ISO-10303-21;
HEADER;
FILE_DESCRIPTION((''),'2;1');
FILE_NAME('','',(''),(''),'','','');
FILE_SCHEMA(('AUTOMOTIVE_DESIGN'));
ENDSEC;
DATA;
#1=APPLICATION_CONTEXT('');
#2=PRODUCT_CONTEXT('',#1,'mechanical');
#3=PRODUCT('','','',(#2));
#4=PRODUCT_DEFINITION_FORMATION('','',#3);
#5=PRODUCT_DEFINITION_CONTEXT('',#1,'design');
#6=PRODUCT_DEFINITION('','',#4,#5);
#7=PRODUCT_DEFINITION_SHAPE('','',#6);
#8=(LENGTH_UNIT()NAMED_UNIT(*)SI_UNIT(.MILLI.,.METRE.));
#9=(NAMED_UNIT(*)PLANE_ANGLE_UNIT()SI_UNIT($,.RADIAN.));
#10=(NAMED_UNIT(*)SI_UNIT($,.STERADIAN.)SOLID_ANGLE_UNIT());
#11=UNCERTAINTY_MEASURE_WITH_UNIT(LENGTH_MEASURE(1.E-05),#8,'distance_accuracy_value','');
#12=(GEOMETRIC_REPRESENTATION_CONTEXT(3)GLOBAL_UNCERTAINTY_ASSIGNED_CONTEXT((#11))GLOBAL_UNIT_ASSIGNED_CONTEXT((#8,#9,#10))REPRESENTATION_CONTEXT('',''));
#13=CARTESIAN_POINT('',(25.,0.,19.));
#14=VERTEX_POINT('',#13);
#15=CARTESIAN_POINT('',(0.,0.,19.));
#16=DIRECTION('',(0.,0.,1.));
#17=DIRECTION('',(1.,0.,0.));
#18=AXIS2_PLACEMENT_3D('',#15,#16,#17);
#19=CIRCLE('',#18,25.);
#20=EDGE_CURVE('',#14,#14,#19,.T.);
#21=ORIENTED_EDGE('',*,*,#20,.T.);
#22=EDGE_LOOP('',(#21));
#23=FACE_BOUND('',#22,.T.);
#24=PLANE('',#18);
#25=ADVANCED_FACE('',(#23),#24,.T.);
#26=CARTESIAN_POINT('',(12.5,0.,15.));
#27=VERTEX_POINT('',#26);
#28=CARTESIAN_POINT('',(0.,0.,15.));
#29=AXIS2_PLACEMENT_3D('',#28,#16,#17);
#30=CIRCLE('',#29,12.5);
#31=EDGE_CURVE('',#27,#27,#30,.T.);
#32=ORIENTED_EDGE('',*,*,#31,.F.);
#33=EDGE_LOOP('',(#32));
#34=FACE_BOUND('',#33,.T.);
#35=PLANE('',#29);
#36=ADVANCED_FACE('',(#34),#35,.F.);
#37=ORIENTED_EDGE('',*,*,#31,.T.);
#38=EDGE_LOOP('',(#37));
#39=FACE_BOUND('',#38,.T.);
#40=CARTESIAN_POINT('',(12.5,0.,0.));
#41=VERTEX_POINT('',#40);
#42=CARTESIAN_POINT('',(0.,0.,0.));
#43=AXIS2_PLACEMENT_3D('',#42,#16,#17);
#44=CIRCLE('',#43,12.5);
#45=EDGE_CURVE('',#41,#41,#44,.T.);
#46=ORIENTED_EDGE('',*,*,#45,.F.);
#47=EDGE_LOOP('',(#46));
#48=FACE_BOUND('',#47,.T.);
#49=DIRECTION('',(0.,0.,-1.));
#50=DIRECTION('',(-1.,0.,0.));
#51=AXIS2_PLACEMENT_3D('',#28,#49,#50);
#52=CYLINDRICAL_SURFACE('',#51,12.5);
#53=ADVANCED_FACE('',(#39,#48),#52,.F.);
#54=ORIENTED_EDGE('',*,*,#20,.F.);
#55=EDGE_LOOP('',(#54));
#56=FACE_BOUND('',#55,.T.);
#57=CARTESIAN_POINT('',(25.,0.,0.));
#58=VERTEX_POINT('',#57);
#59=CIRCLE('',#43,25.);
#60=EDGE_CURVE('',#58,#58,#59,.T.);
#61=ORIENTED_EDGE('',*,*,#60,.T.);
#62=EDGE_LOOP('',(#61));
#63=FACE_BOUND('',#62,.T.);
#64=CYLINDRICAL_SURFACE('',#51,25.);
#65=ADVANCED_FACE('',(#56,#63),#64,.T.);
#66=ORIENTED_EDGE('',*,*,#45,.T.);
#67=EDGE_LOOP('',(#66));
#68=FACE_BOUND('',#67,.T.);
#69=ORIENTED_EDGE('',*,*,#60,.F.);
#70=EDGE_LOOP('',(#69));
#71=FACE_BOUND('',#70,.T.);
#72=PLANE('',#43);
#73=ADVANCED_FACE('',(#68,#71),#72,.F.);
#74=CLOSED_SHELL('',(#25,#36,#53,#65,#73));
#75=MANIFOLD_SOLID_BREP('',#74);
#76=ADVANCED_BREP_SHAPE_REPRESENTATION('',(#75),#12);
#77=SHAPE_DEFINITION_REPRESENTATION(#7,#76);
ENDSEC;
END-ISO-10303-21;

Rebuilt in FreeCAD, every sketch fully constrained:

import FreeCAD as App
import Part
import Sketcher

V = App.Vector

doc = App.newDocument("Part")
params = doc.addObject("Spreadsheet::Sheet", "Params")
for row, (alias, value) in enumerate([
    ("sketch1_diameter", "50 mm"),
    ("sketch1_diameter2", "25 mm"),
    ("pad1_length", "15 mm"),
    ("sketch2_diameter", "50 mm"),
    ("pad2_length", "4 mm"),
], start=1):
    params.set(f"A{row}", alias)
    params.set(f"B{row}", "=" + value)
    params.setAlias(f"B{row}", alias)

body = doc.addObject("PartDesign::Body", "Body")

sketch1 = body.newObject("Sketcher::SketchObject", "Sketch")
sketch1.AttachmentSupport = (doc.getObject("XY_Plane"), [""])
sketch1.MapMode = "FlatFace"
sketch1.addGeometry([
    Part.Circle(V(0, 0, 0), V(0, 0, 1), 25),
    Part.Circle(V(0, 0, 0), V(0, 0, 1), 12),
], False)
sketch1.addConstraint([
    Sketcher.Constraint("Coincident", 0, 3, -1, 1),
    Sketcher.Constraint("Coincident", 1, 3, -1, 1),
    Sketcher.Constraint("Diameter", 0, 50.0),
    Sketcher.Constraint("Diameter", 1, 25.0),
])
sketch1.setExpression("Constraints[2]", "Params.sketch1_diameter")
sketch1.setExpression("Constraints[3]", "Params.sketch1_diameter2")
pad1 = body.newObject("PartDesign::Pad", "Pad")
pad1.Profile = sketch1
pad1.setExpression("Length", "Params.pad1_length")

sketch2 = body.newObject("Sketcher::SketchObject", "Sketch001")
sketch2.AttachmentSupport = (doc.getObject("XY_Plane"), [""])
sketch2.MapMode = "FlatFace"
sketch2.AttachmentOffset = App.Placement(V(0, 0, 15), App.Rotation())
sketch2.addGeometry(Part.Circle(V(0, 0, 0), V(0, 0, 1), 25), False)
sketch2.addConstraint([
    Sketcher.Constraint("Coincident", 0, 3, -1, 1),
    Sketcher.Constraint("Diameter", 0, 50.0),
])
sketch2.setExpression("Constraints[1]", "Params.sketch2_diameter")
pad2 = body.newObject("PartDesign::Pad", "Pad001")
pad2.Profile = sketch2
pad2.setExpression("Length", "Params.pad2_length")

doc.recompute()
